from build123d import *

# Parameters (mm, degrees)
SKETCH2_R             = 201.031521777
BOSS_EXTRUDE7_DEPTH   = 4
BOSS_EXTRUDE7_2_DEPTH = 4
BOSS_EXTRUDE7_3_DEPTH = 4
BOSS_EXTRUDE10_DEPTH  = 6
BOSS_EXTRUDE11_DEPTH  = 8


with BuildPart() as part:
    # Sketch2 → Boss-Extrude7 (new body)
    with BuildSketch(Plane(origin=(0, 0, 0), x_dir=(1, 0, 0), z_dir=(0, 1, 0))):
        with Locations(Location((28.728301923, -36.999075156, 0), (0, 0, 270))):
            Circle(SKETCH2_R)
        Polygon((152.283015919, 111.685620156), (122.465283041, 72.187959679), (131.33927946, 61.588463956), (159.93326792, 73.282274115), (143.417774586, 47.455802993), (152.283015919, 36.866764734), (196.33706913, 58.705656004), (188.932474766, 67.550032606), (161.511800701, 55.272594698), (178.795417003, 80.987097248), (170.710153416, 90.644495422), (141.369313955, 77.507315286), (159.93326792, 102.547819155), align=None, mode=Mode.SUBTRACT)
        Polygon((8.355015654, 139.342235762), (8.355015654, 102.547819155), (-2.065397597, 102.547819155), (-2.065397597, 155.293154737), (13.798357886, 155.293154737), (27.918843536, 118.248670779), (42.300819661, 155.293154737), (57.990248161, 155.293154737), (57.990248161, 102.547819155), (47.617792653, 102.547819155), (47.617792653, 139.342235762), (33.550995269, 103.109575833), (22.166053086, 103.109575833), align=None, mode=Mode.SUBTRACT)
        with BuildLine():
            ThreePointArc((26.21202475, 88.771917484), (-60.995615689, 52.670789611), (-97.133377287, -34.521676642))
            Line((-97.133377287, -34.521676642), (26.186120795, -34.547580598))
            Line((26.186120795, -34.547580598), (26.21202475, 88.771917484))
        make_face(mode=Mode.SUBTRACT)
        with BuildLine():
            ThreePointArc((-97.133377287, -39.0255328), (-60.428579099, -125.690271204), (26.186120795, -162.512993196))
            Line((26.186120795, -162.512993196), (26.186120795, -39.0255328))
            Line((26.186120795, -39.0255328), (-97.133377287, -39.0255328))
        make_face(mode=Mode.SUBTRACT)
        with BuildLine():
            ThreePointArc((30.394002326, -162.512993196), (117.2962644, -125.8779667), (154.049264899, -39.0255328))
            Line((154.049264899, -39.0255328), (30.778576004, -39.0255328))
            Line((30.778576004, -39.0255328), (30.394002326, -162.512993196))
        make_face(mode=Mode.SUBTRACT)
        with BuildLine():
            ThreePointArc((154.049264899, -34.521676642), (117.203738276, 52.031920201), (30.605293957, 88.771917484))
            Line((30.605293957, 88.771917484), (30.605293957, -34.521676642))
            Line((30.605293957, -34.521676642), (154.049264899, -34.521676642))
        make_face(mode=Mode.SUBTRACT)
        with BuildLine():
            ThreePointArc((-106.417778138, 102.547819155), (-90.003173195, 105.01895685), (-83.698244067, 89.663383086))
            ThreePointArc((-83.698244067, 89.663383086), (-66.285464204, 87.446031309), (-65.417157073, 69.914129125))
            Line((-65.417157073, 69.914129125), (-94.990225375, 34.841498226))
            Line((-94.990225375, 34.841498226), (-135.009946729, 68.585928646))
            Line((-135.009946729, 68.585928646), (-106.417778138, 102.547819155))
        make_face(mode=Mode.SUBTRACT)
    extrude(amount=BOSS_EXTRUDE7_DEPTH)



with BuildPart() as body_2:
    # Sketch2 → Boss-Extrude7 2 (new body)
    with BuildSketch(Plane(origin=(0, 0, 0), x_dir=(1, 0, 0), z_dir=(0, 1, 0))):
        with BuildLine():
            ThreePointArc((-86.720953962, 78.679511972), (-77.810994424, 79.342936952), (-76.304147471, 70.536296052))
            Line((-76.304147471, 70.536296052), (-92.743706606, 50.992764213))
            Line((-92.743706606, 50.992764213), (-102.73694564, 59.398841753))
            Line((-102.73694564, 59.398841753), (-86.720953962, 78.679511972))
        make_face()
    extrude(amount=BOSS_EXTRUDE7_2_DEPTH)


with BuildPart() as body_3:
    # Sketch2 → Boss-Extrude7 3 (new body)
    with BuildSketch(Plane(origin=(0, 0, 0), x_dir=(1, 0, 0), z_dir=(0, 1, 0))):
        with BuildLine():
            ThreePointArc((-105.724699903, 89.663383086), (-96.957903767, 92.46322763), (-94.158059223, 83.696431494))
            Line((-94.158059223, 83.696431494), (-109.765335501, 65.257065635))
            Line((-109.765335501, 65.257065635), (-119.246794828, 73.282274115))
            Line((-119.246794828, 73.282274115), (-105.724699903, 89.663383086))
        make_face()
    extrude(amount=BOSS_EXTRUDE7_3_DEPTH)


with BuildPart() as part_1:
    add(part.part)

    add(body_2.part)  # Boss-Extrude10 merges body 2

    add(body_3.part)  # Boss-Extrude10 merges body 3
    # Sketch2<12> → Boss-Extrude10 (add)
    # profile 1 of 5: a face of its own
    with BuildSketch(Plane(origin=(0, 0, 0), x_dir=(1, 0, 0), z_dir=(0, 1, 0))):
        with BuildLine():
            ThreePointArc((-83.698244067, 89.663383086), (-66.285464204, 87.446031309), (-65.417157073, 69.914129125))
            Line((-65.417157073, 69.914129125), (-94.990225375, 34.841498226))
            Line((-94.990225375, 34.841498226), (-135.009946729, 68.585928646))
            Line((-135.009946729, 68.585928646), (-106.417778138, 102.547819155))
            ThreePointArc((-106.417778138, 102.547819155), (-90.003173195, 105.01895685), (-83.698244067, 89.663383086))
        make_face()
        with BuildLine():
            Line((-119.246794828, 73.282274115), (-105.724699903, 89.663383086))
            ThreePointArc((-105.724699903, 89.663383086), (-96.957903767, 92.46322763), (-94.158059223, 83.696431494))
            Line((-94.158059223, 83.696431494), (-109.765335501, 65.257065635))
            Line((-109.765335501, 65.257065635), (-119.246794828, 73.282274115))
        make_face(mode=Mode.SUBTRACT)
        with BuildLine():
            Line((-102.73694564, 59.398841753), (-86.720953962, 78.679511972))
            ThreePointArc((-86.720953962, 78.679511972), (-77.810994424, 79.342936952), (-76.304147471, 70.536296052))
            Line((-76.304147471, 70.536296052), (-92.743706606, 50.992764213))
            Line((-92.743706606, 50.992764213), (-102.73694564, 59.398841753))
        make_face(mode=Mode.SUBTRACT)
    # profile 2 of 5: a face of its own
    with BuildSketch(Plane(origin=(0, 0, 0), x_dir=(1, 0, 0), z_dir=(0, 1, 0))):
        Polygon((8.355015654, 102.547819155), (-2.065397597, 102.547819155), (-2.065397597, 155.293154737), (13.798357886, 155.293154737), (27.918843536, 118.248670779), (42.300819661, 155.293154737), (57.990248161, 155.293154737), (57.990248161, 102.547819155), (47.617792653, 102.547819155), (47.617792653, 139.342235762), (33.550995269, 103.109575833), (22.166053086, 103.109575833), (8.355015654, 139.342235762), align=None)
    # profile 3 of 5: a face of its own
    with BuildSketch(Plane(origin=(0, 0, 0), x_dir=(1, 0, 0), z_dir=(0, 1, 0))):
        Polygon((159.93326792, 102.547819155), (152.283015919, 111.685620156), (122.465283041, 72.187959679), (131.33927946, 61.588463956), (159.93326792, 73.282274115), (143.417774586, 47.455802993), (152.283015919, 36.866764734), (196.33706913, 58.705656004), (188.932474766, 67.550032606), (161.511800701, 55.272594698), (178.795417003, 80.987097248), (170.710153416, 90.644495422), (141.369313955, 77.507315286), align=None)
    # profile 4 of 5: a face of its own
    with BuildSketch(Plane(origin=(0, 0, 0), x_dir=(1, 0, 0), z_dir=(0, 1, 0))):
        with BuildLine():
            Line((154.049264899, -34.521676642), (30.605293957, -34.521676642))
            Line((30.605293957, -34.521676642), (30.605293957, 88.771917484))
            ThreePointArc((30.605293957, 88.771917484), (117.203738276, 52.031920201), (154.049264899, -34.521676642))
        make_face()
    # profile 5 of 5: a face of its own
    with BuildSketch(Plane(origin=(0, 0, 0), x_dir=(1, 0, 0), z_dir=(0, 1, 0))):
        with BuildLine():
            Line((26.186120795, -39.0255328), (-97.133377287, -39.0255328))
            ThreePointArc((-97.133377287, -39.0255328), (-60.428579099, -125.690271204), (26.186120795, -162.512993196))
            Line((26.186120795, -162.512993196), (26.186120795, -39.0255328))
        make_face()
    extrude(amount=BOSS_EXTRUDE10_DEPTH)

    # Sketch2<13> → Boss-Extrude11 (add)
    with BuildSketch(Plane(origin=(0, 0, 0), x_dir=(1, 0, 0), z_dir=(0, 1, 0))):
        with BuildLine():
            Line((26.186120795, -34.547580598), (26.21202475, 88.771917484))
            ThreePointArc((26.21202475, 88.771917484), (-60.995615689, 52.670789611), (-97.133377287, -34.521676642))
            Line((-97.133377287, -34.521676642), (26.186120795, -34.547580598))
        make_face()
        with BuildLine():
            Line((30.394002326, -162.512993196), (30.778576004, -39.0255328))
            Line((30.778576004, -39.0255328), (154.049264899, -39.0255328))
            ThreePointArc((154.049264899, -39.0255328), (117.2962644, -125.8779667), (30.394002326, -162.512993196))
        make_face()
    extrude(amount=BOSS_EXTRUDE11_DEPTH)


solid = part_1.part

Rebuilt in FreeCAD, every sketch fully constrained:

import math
import FreeCAD as App
import Part
import Sketcher
Q = App.Units.Quantity

doc = App.newDocument("Part")
params = doc.addObject("Spreadsheet::Sheet", "Params")
for row, (alias, value) in enumerate([
    ("pad1_length", "4 mm"),
    ("pad2_length", "4 mm"),
    ("pad3_length", "4 mm"),
    ("pad4_length", "6 mm"),
    ("pad5_length", "8 mm"),
], start=1):
    params.set(f"A{row}", alias)
    params.set(f"B{row}", "=" + value)
    params.setAlias(f"B{row}", alias)

body = doc.addObject("PartDesign::Body", "Body")

sketch1 = doc.addObject("Sketcher::SketchObject", "Sketch")
body.addObject(sketch1)
sketch1.AttachmentSupport = (doc.XZ_Plane, [""])
sketch1.MapMode = "FlatFace"
sketch1.addGeometry([
    Part.Circle(App.Vector(28.728302, 36.999075, 0), App.Vector(0, 0, 1), 201.031522),
    Part.LineSegment(App.Vector(-135.009947, -68.585929, 0), App.Vector(-106.417778, -102.547819, 0)),
    Part.ArcOfCircle(Part.Circle(App.Vector(-96.635785, -93.323462, 0), App.Vector(0, 0, 1), 13.445302), math.radians(-136.680543), math.radians(15.796406)),
    Part.ArcOfCircle(Part.Circle(App.Vector(-76.315288, -78.161828, 0), App.Vector(0, 0, 1), 13.667253), math.radians(-122.696785), math.radians(37.118413)),
    Part.LineSegment(App.Vector(-65.417157, -69.914129, 0), App.Vector(-94.990225, -34.841498, 0)),
    Part.LineSegment(App.Vector(-94.990225, -34.841498, 0), App.Vector(-135.009947, -68.585929, 0)),
    Part.LineSegment(App.Vector(22.166053, -103.109576, 0), App.Vector(8.355016, -139.342236, 0)),
    Part.LineSegment(App.Vector(8.355016, -139.342236, 0), App.Vector(8.355016, -102.547819, 0)),
    Part.LineSegment(App.Vector(8.355016, -102.547819, 0), App.Vector(-2.065398, -102.547819, 0)),
    Part.LineSegment(App.Vector(-2.065398, -102.547819, 0), App.Vector(-2.065398, -155.293155, 0)),
    Part.LineSegment(App.Vector(-2.065398, -155.293155, 0), App.Vector(13.798358, -155.293155, 0)),
    Part.LineSegment(App.Vector(13.798358, -155.293155, 0), App.Vector(27.918844, -118.248671, 0)),
    Part.LineSegment(App.Vector(27.918844, -118.248671, 0), App.Vector(42.30082, -155.293155, 0)),
    Part.LineSegment(App.Vector(42.30082, -155.293155, 0), App.Vector(57.990248, -155.293155, 0)),
    Part.LineSegment(App.Vector(57.990248, -155.293155, 0), App.Vector(57.990248, -102.547819, 0)),
    Part.LineSegment(App.Vector(57.990248, -102.547819, 0), App.Vector(47.617793, -102.547819, 0)),
    Part.LineSegment(App.Vector(47.617793, -102.547819, 0), App.Vector(47.617793, -139.342236, 0)),
    Part.LineSegment(App.Vector(47.617793, -139.342236, 0), App.Vector(33.550995, -103.109576, 0)),
    Part.LineSegment(App.Vector(33.550995, -103.109576, 0), App.Vector(22.166053, -103.109576, 0)),
    Part.ArcOfCircle(Part.Circle(App.Vector(26.186121, 34.547581, 0), App.Vector(0, 0, 1), 123.319501), math.radians(-179.987965), math.radians(-89.987965)),
    Part.LineSegment(App.Vector(26.212025, -88.771917, 0), App.Vector(26.186121, 34.547581, 0)),
    Part.LineSegment(App.Vector(26.186121, 34.547581, 0), App.Vector(-97.133377, 34.521677, 0)),
    Part.ArcOfCircle(Part.Circle(App.Vector(28.432301, 36.950256, 0), App.Vector(0, 0, 1), 125.582827), math.radians(91.02485), math.radians(179.053135)),
    Part.LineSegment(App.Vector(-97.133377, 39.025533, 0), App.Vector(26.186121, 39.025533, 0)),
    Part.LineSegment(App.Vector(26.186121, 39.025533, 0), App.Vector(26.186121, 162.512993, 0)),
    Part.ArcOfCircle(Part.Circle(App.Vector(28.381494, 36.898657, 0), App.Vector(0, 0, 1), 125.690249), math.radians(-88.98623), math.radians(-1.083609)),
    Part.LineSegment(App.Vector(154.049265, 34.521677, 0), App.Vector(30.605294, 34.521677, 0)),
    Part.LineSegment(App.Vector(30.605294, 34.521677, 0), App.Vector(30.605294, -88.771917, 0)),
    Part.LineSegment(App.Vector(122.465283, -72.18796, 0), App.Vector(152.283016, -111.68562, 0)),
    Part.LineSegment(App.Vector(152.283016, -111.68562, 0), App.Vector(159.933268, -102.547819, 0)),
    Part.LineSegment(App.Vector(159.933268, -102.547819, 0), App.Vector(141.369314, -77.507315, 0)),
    Part.LineSegment(App.Vector(141.369314, -77.507315, 0), App.Vector(170.710153, -90.644495, 0)),
    Part.LineSegment(App.Vector(170.710153, -90.644495, 0), App.Vector(178.795417, -80.987097, 0)),
    Part.LineSegment(App.Vector(178.795417, -80.987097, 0), App.Vector(161.511801, -55.272595, 0)),
    Part.LineSegment(App.Vector(161.511801, -55.272595, 0), App.Vector(188.932475, -67.550033, 0)),
    Part.LineSegment(App.Vector(188.932475, -67.550033, 0), App.Vector(196.337069, -58.705656, 0)),
    Part.LineSegment(App.Vector(196.337069, -58.705656, 0), App.Vector(152.283016, -36.866765, 0)),
    Part.LineSegment(App.Vector(152.283016, -36.866765, 0), App.Vector(143.417775, -47.455803, 0)),
    Part.LineSegment(App.Vector(143.417775, -47.455803, 0), App.Vector(159.933268, -73.282274, 0)),
    Part.LineSegment(App.Vector(159.933268, -73.282274, 0), App.Vector(131.339279, -61.588464, 0)),
    Part.LineSegment(App.Vector(131.339279, -61.588464, 0), App.Vector(122.465283, -72.18796, 0)),
    Part.ArcOfCircle(Part.Circle(App.Vector(28.740118, 37.201485, 0), App.Vector(0, 0, 1), 125.322422), math.radians(0.83396), math.radians(89.243844)),
    Part.LineSegment(App.Vector(30.394002, 162.512993, 0), App.Vector(30.778576, 39.025533, 0)),
    Part.LineSegment(App.Vector(30.778576, 39.025533, 0), App.Vector(154.049265, 39.025533, 0)),
], False)
sketch1.addConstraint([
    Sketcher.Constraint("Coincident", 1, 2, 2, 1),
    Sketcher.Constraint("Coincident", 2, 2, 3, 1),
    Sketcher.Constraint("Coincident", 3, 2, 4, 1),
    Sketcher.Constraint("Coincident", 4, 2, 5, 1),
    Sketcher.Constraint("Coincident", 5, 2, 1, 1),
    Sketcher.Constraint("Coincident", 6, 2, 7, 1),
    Sketcher.Constraint("Coincident", 7, 2, 8, 1),
    Sketcher.Constraint("Coincident", 8, 2, 9, 1),
    Sketcher.Constraint("Coincident", 9, 2, 10, 1),
    Sketcher.Constraint("Coincident", 10, 2, 11, 1),
    Sketcher.Constraint("Coincident", 11, 2, 12, 1),
    Sketcher.Constraint("Coincident", 12, 2, 13, 1),
    Sketcher.Constraint("Coincident", 13, 2, 14, 1),
    Sketcher.Constraint("Coincident", 14, 2, 15, 1),
    Sketcher.Constraint("Coincident", 15, 2, 16, 1),
    Sketcher.Constraint("Coincident", 16, 2, 17, 1),
    Sketcher.Constraint("Coincident", 17, 2, 18, 1),
    Sketcher.Constraint("Coincident", 18, 2, 6, 1),
    Sketcher.Constraint("Coincident", 19, 2, 20, 1),
    Sketcher.Constraint("Coincident", 20, 2, 21, 1),
    Sketcher.Constraint("Coincident", 21, 2, 19, 1),
    Sketcher.Constraint("Coincident", 22, 2, 23, 1),
    Sketcher.Constraint("Coincident", 23, 2, 24, 1),
    Sketcher.Constraint("Coincident", 24, 2, 22, 1),
    Sketcher.Constraint("Coincident", 25, 2, 26, 1),
    Sketcher.Constraint("Coincident", 26, 2, 27, 1),
    Sketcher.Constraint("Coincident", 27, 2, 25, 1),
    Sketcher.Constraint("Coincident", 28, 2, 29, 1),
    Sketcher.Constraint("Coincident", 29, 2, 30, 1),
    Sketcher.Constraint("Coincident", 30, 2, 31, 1),
    Sketcher.Constraint("Coincident", 31, 2, 32, 1),
    Sketcher.Constraint("Coincident", 32, 2, 33, 1),
    Sketcher.Constraint("Coincident", 33, 2, 34, 1),
    Sketcher.Constraint("Coincident", 34, 2, 35, 1),
    Sketcher.Constraint("Coincident", 35, 2, 36, 1),
    Sketcher.Constraint("Coincident", 36, 2, 37, 1),
    Sketcher.Constraint("Coincident", 37, 2, 38, 1),
    Sketcher.Constraint("Coincident", 38, 2, 39, 1),
    Sketcher.Constraint("Coincident", 39, 2, 40, 1),
    Sketcher.Constraint("Coincident", 40, 2, 28, 1),
    Sketcher.Constraint("Coincident", 41, 2, 42, 1),
    Sketcher.Constraint("Coincident", 42, 2, 43, 1),
    Sketcher.Constraint("Coincident", 43, 2, 41, 1),
    Sketcher.Constraint("Vertical", 7),
    Sketcher.Constraint("Horizontal", 8),
    Sketcher.Constraint("Vertical", 9),
    Sketcher.Constraint("Horizontal", 10),
    Sketcher.Constraint("Horizontal", 13),
    Sketcher.Constraint("Vertical", 14),
    Sketcher.Constraint("Horizontal", 15),
    Sketcher.Constraint("Vertical", 16),
    Sketcher.Constraint("Horizontal", 18),
    Sketcher.Constraint("Horizontal", 23),
    Sketcher.Constraint("Vertical", 24),
    Sketcher.Constraint("Horizontal", 26),
    Sketcher.Constraint("Vertical", 27),
    Sketcher.Constraint("Horizontal", 43),
    Sketcher.Constraint("Coincident", 20, 2, 19, 3),
    Sketcher.Constraint("Perpendicular", 4, 5),
    Sketcher.Constraint("Parallel", 6, 11),
    Sketcher.Constraint("Parallel", 12, 17),
    Sketcher.Constraint("Perpendicular", 20, 21),
    Sketcher.Constraint("Parallel", 29, 32),
    Sketcher.Constraint("Parallel", 31, 34),
    Sketcher.Constraint("Parallel", 32, 35),
    Sketcher.Constraint("Parallel", 35, 37),
    Sketcher.Constraint("Parallel", 37, 40),
    Sketcher.Constraint("Horizontal", 1, 2, 7, 2),
    Sketcher.Constraint("Horizontal", 10, 2, 12, 2),
    Sketcher.Constraint("Horizontal", 8, 2, 14, 2),
    Sketcher.Constraint("Horizontal", 6, 2, 16, 2),
    Sketcher.Constraint("Horizontal", 21, 2, 25, 2),
    Sketcher.Constraint("Horizontal", 19, 2, 27, 2),
    Sketcher.Constraint("Horizontal", 15, 2, 29, 2),
    Sketcher.Constraint("Horizontal", 24, 2, 41, 2),
    Sketcher.Constraint("Horizontal", 23, 2, 42, 2),
    Sketcher.Constraint("Vertical", 21, 2, 22, 2),
    Sketcher.Constraint("Vertical", 20, 2, 23, 2),
    Sketcher.Constraint("Vertical", 28, 2, 36, 2),
    Sketcher.Constraint("Vertical", 29, 2, 38, 2),
    Sketcher.Constraint("Vertical", 25, 2, 43, 2),
    Sketcher.Constraint("Radius", 19, Q("123.319501 mm")),
    Sketcher.Constraint("Radius", 25, Q("125.690249 mm")),
    Sketcher.Constraint("Radius", 41, Q("125.322422 mm")),
    Sketcher.Constraint("Diameter", 0, Q("402.063044 mm")),
    Sketcher.Constraint("Radius", 2, Q("13.445302 mm")),
    Sketcher.Constraint("Radius", 3, Q("13.667253 mm")),
    Sketcher.Constraint("Radius", 22, Q("125.582827 mm")),
    Sketcher.Constraint("DistanceX", 22, 3, 0, 3, Q("0.296001 mm")),
    Sketcher.Constraint("DistanceX", 13, 1, 13, 2, Q("15.689428 mm")),
    Sketcher.Constraint("DistanceX", 26, 2, 26, 1, Q("123.443971 mm")),
    Sketcher.Constraint("DistanceX", 43, 1, 43, 2, Q("123.270689 mm")),
    Sketcher.Constraint("DistanceY", 24, 1, 24, 2, Q("123.48746 mm")),
    Sketcher.Constraint("DistanceX", -1, 1, 0, 3, Q("28.728302 mm")),
    Sketcher.Constraint("DistanceY", 4, 2, -1, 1, Q("34.841498 mm")),
    Sketcher.Constraint("DistanceX", -1, 1, 33, 2, Q("161.511801 mm")),
    Sketcher.Constraint("DistanceY", 25, 3, 22, 3, Q("0.051599 mm")),
    Sketcher.Constraint("DistanceX", 1, 2, 19, 3, Q("132.603899 mm")),
    Sketcher.Constraint("DistanceY", 1, 2, 19, 3, Q("137.0954 mm")),
    Sketcher.Constraint("DistanceY", 3, 3, 3, 2, Q("8.247699 mm")),
    Sketcher.Constraint("DistanceY", 3, 3, 5, 2, Q("9.575899 mm")),
    Sketcher.Constraint("DistanceX", 2, 3, 6, 2, Q("104.990801 mm")),
    Sketcher.Constraint("DistanceY", 25, 2, 0, 3, Q("2.477399 mm")),
    Sketcher.Constraint("DistanceX", 25, 3, 26, 2, Q("2.2238 mm")),
    Sketcher.Constraint("DistanceX", 27, 2, 17, 2, Q("2.945701 mm")),
    Sketcher.Constraint("DistanceX", 27, 2, 15, 2, Q("17.012499 mm")),
    Sketcher.Constraint("DistanceY", 28, 2, 14, 2, Q("9.137801 mm")),
    Sketcher.Constraint("DistanceX", 30, 2, 28, 2, Q("10.913702 mm")),
    Sketcher.Constraint("DistanceY", 31, 2, 32, 2, Q("9.657398 mm")),
    Sketcher.Constraint("DistanceX", 28, 2, 32, 2, Q("26.512401 mm")),
    Sketcher.Constraint("DistanceY", 31, 2, 33, 2, Q("35.371901 mm")),
    Sketcher.Constraint("DistanceX", 29, 2, 35, 2, Q("36.403801 mm")),
    Sketcher.Constraint("DistanceX", 37, 2, 34, 2, Q("45.5147 mm")),
    Sketcher.Constraint("DistanceY", 39, 2, 36, 2, Q("24.721699 mm")),
    Sketcher.Constraint("DistanceX", 0, 3, 41, 2, Q("1.6657 mm")),
    Sketcher.Constraint("Distance", 1, Q("44.395069 mm")),
    Sketcher.Constraint("Distance", 6, Q("38.775642 mm")),
    Sketcher.Constraint("Distance", 12, Q("39.738332 mm")),
    Sketcher.Constraint("Distance", 32, Q("12.595111 mm")),
    Sketcher.Constraint("Distance", 36, Q("49.17008 mm")),
    Sketcher.Constraint("Distance", 37, Q("13.81015 mm")),
    Sketcher.Constraint("Distance", 39, Q("30.89274 mm")),
    Sketcher.Constraint("Distance", 40, Q("13.823788 mm")),
    Sketcher.Constraint("DistanceX", 8, 2, 8, 1, Q("10.420413 mm")),
    Sketcher.Constraint("DistanceX", 10, 1, 10, 2, Q("15.863755 mm")),
    Sketcher.Constraint("DistanceX", 15, 2, 15, 1, Q("10.372456 mm")),
    Sketcher.Constraint("DistanceX", 18, 2, 18, 1, Q("11.384942 mm")),
    Sketcher.Constraint("DistanceY", 7, 1, 7, 2, Q("36.794417 mm")),
    Sketcher.Constraint("DistanceY", 9, 2, 9, 1, Q("52.745336 mm")),
    Sketcher.Constraint("DistanceY", 2, 3, -1, 1, Q("93.323462 mm")),
    Sketcher.Constraint("DistanceX", 3, 3, -1, 1, Q("76.315288 mm")),
    Sketcher.Constraint("DistanceY", 3, 3, -1, 1, Q("78.161828 mm")),
    Sketcher.Constraint("DistanceY", -1, 1, 19, 3, Q("34.547581 mm")),
    Sketcher.Constraint("DistanceX", -1, 1, 35, 2, Q("196.337069 mm")),
    Sketcher.Constraint("DistanceX", -1, 1, 39, 2, Q("131.339279 mm")),
    Sketcher.Constraint("DistanceY", 40, 2, -1, 1, Q("72.18796 mm")),
    Sketcher.Constraint("DistanceY", 17, 2, 30, 2, Q("25.602261 mm")),
])
pad1 = doc.addObject("PartDesign::Pad", "Pad")
body.addObject(pad1)
pad1.Profile = sketch1
pad1.setExpression("Length", "Params.pad1_length")
pad1.Reversed = True
body2 = doc.addObject("PartDesign::Body", "Body001")

sketch2 = doc.addObject("Sketcher::SketchObject", "Sketch001")
body2.addObject(sketch2)
sketch2.AttachmentSupport = (doc.getObject("XZ_Plane001"), [""])
sketch2.MapMode = "FlatFace"
sketch2.addGeometry([
    Part.ArcOfCircle(Part.Circle(App.Vector(-81.9011, -74.110872, 0), App.Vector(0, 0, 1), 6.641044), math.radians(-136.532735), math.radians(32.564934)),
    Part.LineSegment(App.Vector(-86.720954, -78.679512, 0), App.Vector(-102.736946, -59.398842, 0)),
    Part.LineSegment(App.Vector(-102.736946, -59.398842, 0), App.Vector(-92.743707, -50.992764, 0)),
    Part.LineSegment(App.Vector(-92.743707, -50.992764, 0), App.Vector(-76.304147, -70.536296, 0)),
], False)
sketch2.addConstraint([
    Sketcher.Constraint("Coincident", 0, 1, 1, 1),
    Sketcher.Constraint("Coincident", 1, 2, 2, 1),
    Sketcher.Constraint("Coincident", 2, 2, 3, 1),
    Sketcher.Constraint("Coincident", 3, 2, 0, 2),
    Sketcher.Constraint("Perpendicular", 2, 3),
    Sketcher.Constraint("Radius", 0, Q("6.641044 mm")),
    Sketcher.Constraint("DistanceX", 0, 3, -1, 1, Q("81.9011 mm")),
    Sketcher.Constraint("DistanceX", 1, 2, 3, 2, Q("26.432798 mm")),
    Sketcher.Constraint("Distance", 1, Q("25.06504 mm")),
    Sketcher.Constraint("DistanceY", 0, 3, -1, 1, Q("74.110872 mm")),
    Sketcher.Constraint("DistanceY", 0, 1, -1, 1, Q("78.679512 mm")),
    Sketcher.Constraint("DistanceY", 1, 2, -1, 1, Q("59.398842 mm")),
    Sketcher.Constraint("DistanceX", 1, 2, 2, 2, Q("9.993239 mm")),
])
pad2 = doc.addObject("PartDesign::Pad", "Pad001")
body2.addObject(pad2)
pad2.Profile = sketch2
pad2.setExpression("Length", "Params.pad2_length")
pad2.Reversed = True
body3 = doc.addObject("PartDesign::Body", "Body002")

sketch3 = doc.addObject("Sketcher::SketchObject", "Sketch002")
body3.addObject(sketch3)
sketch3.AttachmentSupport = (doc.getObject("XZ_Plane002"), [""])
sketch3.MapMode = "FlatFace"
sketch3.addGeometry([
    Part.ArcOfCircle(Part.Circle(App.Vector(-99.94138, -86.679907, 0), App.Vector(0, 0, 1), 6.507528), math.radians(-152.71188), math.radians(27.28812)),
    Part.LineSegment(App.Vector(-105.7247, -89.663383, 0), App.Vector(-119.246795, -73.282274, 0)),
    Part.LineSegment(App.Vector(-119.246795, -73.282274, 0), App.Vector(-109.765336, -65.257066, 0)),
    Part.LineSegment(App.Vector(-109.765336, -65.257066, 0), App.Vector(-94.158059, -83.696431, 0)),
], False)
sketch3.addConstraint([
    Sketcher.Constraint("Coincident", 0, 1, 1, 1),
    Sketcher.Constraint("Coincident", 1, 2, 2, 1),
    Sketcher.Constraint("Coincident", 2, 2, 3, 1),
    Sketcher.Constraint("Coincident", 3, 2, 0, 2),
    Sketcher.Constraint("Perpendicular", 2, 3),
    Sketcher.Constraint("Radius", 0, Q("6.507528 mm")),
    Sketcher.Constraint("DistanceX", 0, 1, -1, 1, Q("105.7247 mm")),
    Sketcher.Constraint("Distance", 1, Q("21.241181 mm")),
    Sketcher.Constraint("Distance", 3, Q("24.157758 mm")),
    Sketcher.Constraint("DistanceX", 0, 3, -1, 1, Q("99.94138 mm")),
    Sketcher.Constraint("DistanceX", 3, 2, -1, 1, Q("94.158059 mm")),
    Sketcher.Constraint("DistanceY", 3, 2, -1, 1, Q("83.696431 mm")),
    Sketcher.Constraint("DistanceY", 0, 1, 1, 2, Q("16.381109 mm")),
])
pad3 = doc.addObject("PartDesign::Pad", "Pad002")
body3.addObject(pad3)
pad3.Profile = sketch3
pad3.setExpression("Length", "Params.pad3_length")
pad3.Reversed = True
body.AllowCompound = True
doc.recompute()

boolean = doc.addObject("PartDesign::Boolean", "Boolean")
body.addObject(boolean)
boolean.Type = "Fuse"
boolean.addObjects([body2])
doc.recompute()

boolean2 = doc.addObject("PartDesign::Boolean", "Boolean001")
body.addObject(boolean2)
boolean2.Type = "Fuse"
boolean2.addObjects([body3])

sketch4 = doc.addObject("Sketcher::SketchObject", "Sketch003")
body.addObject(sketch4)
sketch4.AttachmentSupport = (doc.XZ_Plane, [""])
sketch4.MapMode = "FlatFace"
sketch4.addGeometry([
    Part.ArcOfCircle(Part.Circle(App.Vector(-76.315288, -78.161828, 0), App.Vector(0, 0, 1), 13.667253), math.radians(-122.696785), math.radians(37.118413)),
    Part.ArcOfCircle(Part.Circle(App.Vector(-96.635785, -93.323462, 0), App.Vector(0, 0, 1), 13.445302), math.radians(-136.680543), math.radians(15.796406)),
    Part.LineSegment(App.Vector(-106.417778, -102.547819, 0), App.Vector(-135.009947, -68.585929, 0)),
    Part.LineSegment(App.Vector(-135.009947, -68.585929, 0), App.Vector(-94.990225, -34.841498, 0)),
    Part.LineSegment(App.Vector(-94.990225, -34.841498, 0), App.Vector(-65.417157, -69.914129, 0)),
    Part.LineSegment(App.Vector(-102.736946, -59.398842, 0), App.Vector(-86.720954, -78.679512, 0)),
    Part.ArcOfCircle(Part.Circle(App.Vector(-81.9011, -74.110872, 0), App.Vector(0, 0, 1), 6.641044), math.radians(-136.532735), math.radians(32.564934)),
    Part.LineSegment(App.Vector(-76.304147, -70.536296, 0), App.Vector(-92.743707, -50.992764, 0)),
    Part.LineSegment(App.Vector(-92.743707, -50.992764, 0), App.Vector(-102.736946, -59.398842, 0)),
    Part.LineSegment(App.Vector(-119.246795, -73.282274, 0), App.Vector(-105.7247, -89.663383, 0)),
    Part.ArcOfCircle(Part.Circle(App.Vector(-99.94138, -86.679907, 0), App.Vector(0, 0, 1), 6.507528), math.radians(-152.71188), math.radians(27.28812)),
    Part.LineSegment(App.Vector(-94.158059, -83.696431, 0), App.Vector(-109.765336, -65.257066, 0)),
    Part.LineSegment(App.Vector(-109.765336, -65.257066, 0), App.Vector(-119.246795, -73.282274, 0)),
    Part.LineSegment(App.Vector(-2.065398, -102.547819, 0), App.Vector(8.355016, -102.547819, 0)),
    Part.LineSegment(App.Vector(8.355016, -102.547819, 0), App.Vector(8.355016, -139.342236, 0)),
    Part.LineSegment(App.Vector(8.355016, -139.342236, 0), App.Vector(22.166053, -103.109576, 0)),
    Part.LineSegment(App.Vector(22.166053, -103.109576, 0), App.Vector(33.550995, -103.109576, 0)),
    Part.LineSegment(App.Vector(33.550995, -103.109576, 0), App.Vector(47.617793, -139.342236, 0)),
    Part.LineSegment(App.Vector(47.617793, -139.342236, 0), App.Vector(47.617793, -102.547819, 0)),
    Part.LineSegment(App.Vector(47.617793, -102.547819, 0), App.Vector(57.990248, -102.547819, 0)),
    Part.LineSegment(App.Vector(57.990248, -102.547819, 0), App.Vector(57.990248, -155.293155, 0)),
    Part.LineSegment(App.Vector(57.990248, -155.293155, 0), App.Vector(42.30082, -155.293155, 0)),
    Part.LineSegment(App.Vector(42.30082, -155.293155, 0), App.Vector(27.918844, -118.248671, 0)),
    Part.LineSegment(App.Vector(27.918844, -118.248671, 0), App.Vector(13.798358, -155.293155, 0)),
    Part.LineSegment(App.Vector(13.798358, -155.293155, 0), App.Vector(-2.065398, -155.293155, 0)),
    Part.LineSegment(App.Vector(-2.065398, -155.293155, 0), App.Vector(-2.065398, -102.547819, 0)),
    Part.LineSegment(App.Vector(159.933268, -102.547819, 0), App.Vector(152.283016, -111.68562, 0)),
    Part.LineSegment(App.Vector(152.283016, -111.68562, 0), App.Vector(122.465283, -72.18796, 0)),
    Part.LineSegment(App.Vector(122.465283, -72.18796, 0), App.Vector(131.339279, -61.588464, 0)),
    Part.LineSegment(App.Vector(131.339279, -61.588464, 0), App.Vector(159.933268, -73.282274, 0)),
    Part.LineSegment(App.Vector(159.933268, -73.282274, 0), App.Vector(143.417775, -47.455803, 0)),
    Part.LineSegment(App.Vector(143.417775, -47.455803, 0), App.Vector(152.283016, -36.866765, 0)),
    Part.LineSegment(App.Vector(152.283016, -36.866765, 0), App.Vector(196.337069, -58.705656, 0)),
    Part.LineSegment(App.Vector(196.337069, -58.705656, 0), App.Vector(188.932475, -67.550033, 0)),
    Part.LineSegment(App.Vector(188.932475, -67.550033, 0), App.Vector(161.511801, -55.272595, 0)),
    Part.LineSegment(App.Vector(161.511801, -55.272595, 0), App.Vector(178.795417, -80.987097, 0)),
    Part.LineSegment(App.Vector(178.795417, -80.987097, 0), App.Vector(170.710153, -90.644495, 0)),
    Part.LineSegment(App.Vector(170.710153, -90.644495, 0), App.Vector(141.369314, -77.507315, 0)),
    Part.LineSegment(App.Vector(141.369314, -77.507315, 0), App.Vector(159.933268, -102.547819, 0)),
    Part.LineSegment(App.Vector(30.605294, 34.521677, 0), App.Vector(154.049265, 34.521677, 0)),
    Part.ArcOfCircle(Part.Circle(App.Vector(28.381494, 36.898657, 0), App.Vector(0, 0, 1), 125.690249), math.radians(-88.98623), math.radians(-1.083609)),
    Part.LineSegment(App.Vector(30.605294, -88.771917, 0), App.Vector(30.605294, 34.521677, 0)),
    Part.LineSegment(App.Vector(26.186121, 39.025533, 0), App.Vector(-97.133377, 39.025533, 0)),
    Part.ArcOfCircle(Part.Circle(App.Vector(28.432301, 36.950256, 0), App.Vector(0, 0, 1), 125.582827), math.radians(91.02485), math.radians(179.053135)),
    Part.LineSegment(App.Vector(26.186121, 162.512993, 0), App.Vector(26.186121, 39.025533, 0)),
], False)
sketch4.addConstraint([
    Sketcher.Constraint("Coincident", 0, 1, 1, 2),
    Sketcher.Constraint("Coincident", 1, 1, 2, 1),
    Sketcher.Constraint("Coincident", 2, 2, 3, 1),
    Sketcher.Constraint("Coincident", 3, 2, 4, 1),
    Sketcher.Constraint("Coincident", 4, 2, 0, 2),
    Sketcher.Constraint("Coincident", 5, 2, 6, 1),
    Sketcher.Constraint("Coincident", 6, 2, 7, 1),
    Sketcher.Constraint("Coincident", 7, 2, 8, 1),
    Sketcher.Constraint("Coincident", 8, 2, 5, 1),
    Sketcher.Constraint("Coincident", 9, 2, 10, 1),
    Sketcher.Constraint("Coincident", 10, 2, 11, 1),
    Sketcher.Constraint("Coincident", 11, 2, 12, 1),
    Sketcher.Constraint("Coincident", 12, 2, 9, 1),
    Sketcher.Constraint("Coincident", 13, 2, 14, 1),
    Sketcher.Constraint("Coincident", 14, 2, 15, 1),
    Sketcher.Constraint("Coincident", 15, 2, 16, 1),
    Sketcher.Constraint("Coincident", 16, 2, 17, 1),
    Sketcher.Constraint("Coincident", 17, 2, 18, 1),
    Sketcher.Constraint("Coincident", 18, 2, 19, 1),
    Sketcher.Constraint("Coincident", 19, 2, 20, 1),
    Sketcher.Constraint("Coincident", 20, 2, 21, 1),
    Sketcher.Constraint("Coincident", 21, 2, 22, 1),
    Sketcher.Constraint("Coincident", 22, 2, 23, 1),
    Sketcher.Constraint("Coincident", 23, 2, 24, 1),
    Sketcher.Constraint("Coincident", 24, 2, 25, 1),
    Sketcher.Constraint("Coincident", 25, 2, 13, 1),
    Sketcher.Constraint("Coincident", 26, 2, 27, 1),
    Sketcher.Constraint("Coincident", 27, 2, 28, 1),
    Sketcher.Constraint("Coincident", 28, 2, 29, 1),
    Sketcher.Constraint("Coincident", 29, 2, 30, 1),
    Sketcher.Constraint("Coincident", 30, 2, 31, 1),
    Sketcher.Constraint("Coincident", 31, 2, 32, 1),
    Sketcher.Constraint("Coincident", 32, 2, 33, 1),
    Sketcher.Constraint("Coincident", 33, 2, 34, 1),
    Sketcher.Constraint("Coincident", 34, 2, 35, 1),
    Sketcher.Constraint("Coincident", 35, 2, 36, 1),
    Sketcher.Constraint("Coincident", 36, 2, 37, 1),
    Sketcher.Constraint("Coincident", 37, 2, 38, 1),
    Sketcher.Constraint("Coincident", 38, 2, 26, 1),
    Sketcher.Constraint("Coincident", 39, 2, 40, 2),
    Sketcher.Constraint("Coincident", 40, 1, 41, 1),
    Sketcher.Constraint("Coincident", 41, 2, 39, 1),
    Sketcher.Constraint("Coincident", 42, 2, 43, 2),
    Sketcher.Constraint("Coincident", 43, 1, 44, 1),
    Sketcher.Constraint("Coincident", 44, 2, 42, 1),
    Sketcher.Constraint("Horizontal", 13),
    Sketcher.Constraint("Vertical", 14),
    Sketcher.Constraint("Horizontal", 16),
    Sketcher.Constraint("Vertical", 18),
    Sketcher.Constraint("Horizontal", 19),
    Sketcher.Constraint("Vertical", 20),
    Sketcher.Constraint("Horizontal", 21),
    Sketcher.Constraint("Horizontal", 24),
    Sketcher.Constraint("Vertical", 25),
    Sketcher.Constraint("Horizontal", 39),
    Sketcher.Constraint("Vertical", 41),
    Sketcher.Constraint("Horizontal", 42),
    Sketcher.Constraint("Vertical", 44),
    Sketcher.Constraint("Radius", 10, Q("6.507528 mm")),
    Sketcher.Constraint("Radius", 40, Q("125.690249 mm")),
    Sketcher.Constraint("DistanceX", 42, 2, 42, 1, Q("123.319498 mm")),
    Sketcher.Constraint("Radius", 0, Q("13.667253 mm")),
    Sketcher.Constraint("Radius", 1, Q("13.445302 mm")),
    Sketcher.Constraint("Radius", 6, Q("6.641044 mm")),
    Sketcher.Constraint("Radius", 43, Q("125.582827 mm")),
    Sketcher.Constraint("DistanceX", 21, 2, 21, 1, Q("15.689428 mm")),
    Sketcher.Constraint("DistanceX", 39, 1, 39, 2, Q("123.443971 mm")),
    Sketcher.Constraint("DistanceY", 44, 2, 44, 1, Q("123.48746 mm")),
    Sketcher.Constraint("DistanceX", 6, 3, -1, 1, Q("81.9011 mm")),
    Sketcher.Constraint("DistanceX", -1, 1, 43, 3, Q("28.432301 mm")),
    Sketcher.Constraint("DistanceY", 3, 2, -1, 1, Q("34.841498 mm")),
    Sketcher.Constraint("DistanceX", 9, 2, -1, 1, Q("105.7247 mm")),
    Sketcher.Constraint("DistanceX", -1, 1, 34, 2, Q("161.511801 mm")),
    Sketcher.Constraint("DistanceY", 40, 3, 43, 3, Q("0.051599 mm")),
    Sketcher.Constraint("DistanceX", 1, 1, 10, 3, Q("6.476399 mm")),
    Sketcher.Constraint("DistanceY", 0, 3, 4, 2, Q("8.247699 mm")),
    Sketcher.Constraint("DistanceY", 11, 2, 7, 2, Q("14.264301 mm")),
    Sketcher.Constraint("DistanceX", 6, 2, 15, 2, Q("98.470201 mm")),
    Sketcher.Constraint("DistanceY", 26, 2, 19, 2, Q("9.137801 mm")),
    Sketcher.Constraint("DistanceY", 28, 2, 31, 2, Q("24.721699 mm")),
    Sketcher.Constraint("DistanceX", 29, 2, 32, 2, Q("36.403801 mm")),
    Sketcher.Constraint("DistanceX", 30, 2, 33, 2, Q("45.5147 mm")),
    Sketcher.Constraint("DistanceX", 26, 2, 35, 2, Q("26.512401 mm")),
    Sketcher.Constraint("DistanceY", 36, 2, 35, 2, Q("9.657398 mm")),
    Sketcher.Constraint("DistanceY", 36, 2, 34, 2, Q("35.371901 mm")),
    Sketcher.Constraint("DistanceY", 26, 2, 38, 2, Q("9.137801 mm")),
    Sketcher.Constraint("DistanceX", 40, 1, 16, 2, Q("2.945701 mm")),
    Sketcher.Constraint("DistanceX", 40, 1, 18, 2, Q("17.012499 mm")),
    Sketcher.Constraint("DistanceY", 18, 2, 40, 1, Q("13.775902 mm")),
    Sketcher.Constraint("DistanceY", 13, 2, 40, 1, Q("13.775902 mm")),
    Sketcher.Constraint("DistanceX", 40, 3, 41, 2, Q("2.2238 mm")),
    Sketcher.Constraint("DistanceY", 11, 2, 42, 2, Q("104.282598 mm")),
    Sketcher.Constraint("Distance", 2, Q("44.395069 mm")),
    Sketcher.Constraint("Distance", 5, Q("25.06504 mm")),
    Sketcher.Constraint("Distance", 9, Q("21.241181 mm")),
    Sketcher.Constraint("Distance", 11, Q("24.157758 mm")),
    Sketcher.Constraint("Distance", 15, Q("38.775642 mm")),
    Sketcher.Constraint("Distance", 22, Q("39.738332 mm")),
    Sketcher.Constraint("Distance", 28, Q("13.823788 mm")),
    Sketcher.Constraint("Distance", 29, Q("30.89274 mm")),
    Sketcher.Constraint("Distance", 31, Q("13.81015 mm")),
    Sketcher.Constraint("Distance", 32, Q("49.17008 mm")),
    Sketcher.Constraint("Distance", 36, Q("12.595111 mm")),
    Sketcher.Constraint("DistanceX", 13, 1, 13, 2, Q("10.420413 mm")),
    Sketcher.Constraint("DistanceX", 16, 1, 16, 2, Q("11.384942 mm")),
    Sketcher.Constraint("DistanceX", 19, 1, 19, 2, Q("10.372456 mm")),
    Sketcher.Constraint("DistanceX", 24, 2, 24, 1, Q("15.863755 mm")),
    Sketcher.Constraint("DistanceY", 14, 2, 14, 1, Q("36.794417 mm")),
    Sketcher.Constraint("DistanceY", 18, 1, 18, 2, Q("36.794417 mm")),
    Sketcher.Constraint("DistanceY", 20, 2, 20, 1, Q("52.745336 mm")),
    Sketcher.Constraint("DistanceY", 25, 1, 25, 2, Q("52.745336 mm")),
    Sketcher.Constraint("DistanceX", 0, 3, -1, 1, Q("76.315288 mm")),
    Sketcher.Constraint("DistanceY", 0, 3, -1, 1, Q("78.161828 mm")),
    Sketcher.Constraint("DistanceY", 1, 3, -1, 1, Q("93.323462 mm")),
    Sketcher.Constraint("DistanceY", 6, 3, -1, 1, Q("74.110872 mm")),
    Sketcher.Constraint("DistanceX", 10, 3, -1, 1, Q("99.94138 mm")),
    Sketcher.Constraint("DistanceY", 1, 1, -1, 1, Q("102.547819 mm")),
    Sketcher.Constraint("DistanceY", 2, 2, -1, 1, Q("68.585929 mm")),
    Sketcher.Constraint("DistanceY", 5, 2, -1, 1, Q("78.679512 mm")),
    Sketcher.Constraint("DistanceY", 8, 2, -1, 1, Q("59.398842 mm")),
    Sketcher.Constraint("DistanceX", 10, 2, -1, 1, Q("94.158059 mm")),
    Sketcher.Constraint("DistanceY", 10, 2, -1, 1, Q("83.696431 mm")),
    Sketcher.Constraint("DistanceY", 13, 2, -1, 1, Q("102.547819 mm")),
    Sketcher.Constraint("DistanceX", -1, 1, 19, 2, Q("57.990248 mm")),
    Sketcher.Constraint("DistanceY", 22, 2, -1, 1, Q("118.248671 mm")),
    Sketcher.Constraint("DistanceY", 27, 2, -1, 1, Q("72.18796 mm")),
    Sketcher.Constraint("DistanceX", -1, 1, 28, 2, Q("131.339279 mm")),
    Sketcher.Constraint("DistanceX", -1, 1, 32, 2, Q("196.337069 mm")),
    Sketcher.Constraint("DistanceX", 2, 2, 3, 2, Q("40.019721 mm")),
    Sketcher.Constraint("DistanceX", 3, 2, 7, 2, Q("2.246519 mm")),
    Sketcher.Constraint("DistanceX", 12, 2, 11, 2, Q("9.481459 mm")),
    Sketcher.Constraint("DistanceX", 0, 1, 13, 2, Q("92.05326 mm")),
    Sketcher.Constraint("DistanceX", 18, 2, 27, 2, Q("74.84749 mm")),
    Sketcher.Constraint("DistanceY", 28, 2, 30, 2, Q("14.132661 mm")),
    Sketcher.Constraint("DistanceX", 27, 2, 30, 2, Q("20.952492 mm")),
    Sketcher.Constraint("DistanceX", 30, 2, 26, 2, Q("8.865241 mm")),
    Sketcher.Constraint("DistanceY", 29, 2, 33, 2, Q("5.732242 mm")),
    Sketcher.Constraint("DistanceY", 29, 2, 34, 2, Q("18.009679 mm")),
    Sketcher.Constraint("DistanceY", 37, 2, 28, 2, Q("15.918851 mm")),
    Sketcher.Constraint("DistanceX", 27, 2, 37, 2, Q("18.904031 mm")),
    Sketcher.Constraint("DistanceX", 38, 2, 35, 2, Q("18.862149 mm")),
])
pad4 = doc.addObject("PartDesign::Pad", "Pad003")
body.addObject(pad4)
pad4.Profile = sketch4
pad4.setExpression("Length", "Params.pad4_length")
pad4.Reversed = True

sketch5 = doc.addObject("Sketcher::SketchObject", "Sketch004")
body.addObject(sketch5)
sketch5.AttachmentSupport = (doc.XZ_Plane, [""])
sketch5.MapMode = "FlatFace"
sketch5.addGeometry([
    Part.LineSegment(App.Vector(26.186121, 34.547581, 0), App.Vector(26.212025, -88.771917, 0)),
    Part.ArcOfCircle(Part.Circle(App.Vector(26.186121, 34.547581, 0), App.Vector(0, 0, 1), 123.319501), math.radians(-179.987965), math.radians(-89.987965)),
    Part.LineSegment(App.Vector(-97.133377, 34.521677, 0), App.Vector(26.186121, 34.547581, 0)),
    Part.LineSegment(App.Vector(30.778576, 39.025533, 0), App.Vector(30.394002, 162.512993, 0)),
    Part.ArcOfCircle(Part.Circle(App.Vector(28.740118, 37.201485, 0), App.Vector(0, 0, 1), 125.322422), math.radians(0.83396), math.radians(89.243844)),
    Part.LineSegment(App.Vector(154.049265, 39.025533, 0), App.Vector(30.778576, 39.025533, 0)),
], False)
sketch5.addConstraint([
    Sketcher.Constraint("Coincident", 0, 2, 1, 2),
    Sketcher.Constraint("Coincident", 1, 1, 2, 1),
    Sketcher.Constraint("Coincident", 2, 2, 0, 1),
    Sketcher.Constraint("Coincident", 3, 2, 4, 2),
    Sketcher.Constraint("Coincident", 4, 1, 5, 1),
    Sketcher.Constraint("Coincident", 5, 2, 3, 1),
    Sketcher.Constraint("Horizontal", 5),
    Sketcher.Constraint("Coincident", 2, 2, 1, 3),
    Sketcher.Constraint("Perpendicular", 0, 2),
    Sketcher.Constraint("Radius", 1, Q("123.319501 mm")),
    Sketcher.Constraint("Radius", 4, Q("125.322422 mm")),
    Sketcher.Constraint("DistanceX", 5, 2, 5, 1, Q("123.270689 mm")),
    Sketcher.Constraint("Distance", 3, Q("123.488059 mm")),
    Sketcher.Constraint("DistanceX", -1, 1, 1, 3, Q("26.186121 mm")),
    Sketcher.Constraint("DistanceY", -1, 1, 1, 3, Q("34.547581 mm")),
    Sketcher.Constraint("DistanceX", -1, 1, 4, 3, Q("28.740118 mm")),
    Sketcher.Constraint("DistanceY", 1, 1, 4, 3, Q("2.679809 mm")),
    Sketcher.Constraint("DistanceX", 2, 2, 3, 2, Q("4.207882 mm")),
    Sketcher.Constraint("DistanceY", 0, 2, 3, 2, Q("251.284911 mm")),
])
pad5 = doc.addObject("PartDesign::Pad", "Pad004")
body.addObject(pad5)
pad5.Profile = sketch5
pad5.setExpression("Length", "Params.pad5_length")
pad5.Reversed = True

doc.recompute()
